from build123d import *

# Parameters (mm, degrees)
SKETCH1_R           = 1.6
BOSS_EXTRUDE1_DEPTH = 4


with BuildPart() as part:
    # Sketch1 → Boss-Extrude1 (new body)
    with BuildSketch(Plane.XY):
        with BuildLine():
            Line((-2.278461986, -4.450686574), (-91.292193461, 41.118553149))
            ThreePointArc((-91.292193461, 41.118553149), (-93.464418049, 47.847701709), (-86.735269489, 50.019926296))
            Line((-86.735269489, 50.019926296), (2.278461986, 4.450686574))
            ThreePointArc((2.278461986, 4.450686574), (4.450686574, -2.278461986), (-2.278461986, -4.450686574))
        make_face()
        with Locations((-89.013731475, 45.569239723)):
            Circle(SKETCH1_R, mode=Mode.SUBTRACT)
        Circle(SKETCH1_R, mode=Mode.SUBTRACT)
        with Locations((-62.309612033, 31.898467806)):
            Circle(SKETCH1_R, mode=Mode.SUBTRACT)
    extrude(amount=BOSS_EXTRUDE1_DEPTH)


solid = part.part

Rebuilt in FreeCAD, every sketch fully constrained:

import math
import FreeCAD as App
import Part
import Sketcher

V = App.Vector

doc = App.newDocument("Part")
body = doc.addObject("PartDesign::Body", "Body")

# Sketch on XY plane
sketch1 = doc.addObject("Sketcher::SketchObject", "Sketch")
body.addObject(sketch1)
sketch1.AttachmentSupport = (doc.XY_Plane, [""])
sketch1.MapMode = "FlatFace"
sketch1.addGeometry([
    Part.LineSegment(V(-91.3, 41.1, 0), V(-2.3, -4.5, 0)),  # 0
    Part.ArcOfCircle(Part.Circle(V(0, 0, 0), V(0, 0, 1), 5), math.radians(-117), math.radians(63)),  # 1
    Part.LineSegment(V(2.3, 4.5, 0), V(-86.7, 50, 0)),  # 2
    Part.ArcOfCircle(Part.Circle(V(-89, 45.6, 0), V(0, 0, 1), 5), math.radians(63), math.radians(243)),  # 3
    Part.Circle(V(0, 0, 0), V(0, 0, 1), 1.6),  # 4
    Part.Circle(V(-62.3, 31.9, 0), V(0, 0, 1), 1.6),  # 5
    Part.Circle(V(-89, 45.6, 0), V(0, 0, 1), 1.6),  # 6
], False)
sketch1.addConstraint([
    Sketcher.Constraint("Tangent", 0, 2, 1, 1),
    Sketcher.Constraint("Tangent", 1, 2, 2, 1),
    Sketcher.Constraint("Tangent", 2, 2, 3, 1),
    Sketcher.Constraint("Tangent", 3, 2, 0, 1),
    Sketcher.Constraint("Coincident", 1, 3, -1, 1),
    Sketcher.Constraint("Coincident", 4, 3, -1, 1),
    Sketcher.Constraint("Coincident", 6, 3, 3, 3),
    Sketcher.Constraint("Equal", 1, 3),
    Sketcher.Constraint("Equal", 4, 5),
    Sketcher.Constraint("Equal", 5, 6),
    Sketcher.Constraint("Radius", 1, 5.0),
    Sketcher.Constraint("Diameter", 4, 3.2),
    Sketcher.Constraint("Distance", 0, 100.0),
    Sketcher.Constraint("DistanceX", 3, 3, -1, 1, 89.013731),
    Sketcher.Constraint("DistanceX", 3, 3, 5, 3, 26.704119),
    Sketcher.Constraint("DistanceY", 5, 3, 3, 3, 13.670772),
])
pad1 = doc.addObject("PartDesign::Pad", "Pad")
body.addObject(pad1)
pad1.Profile = sketch1
pad1.Length = 4

doc.recompute()
